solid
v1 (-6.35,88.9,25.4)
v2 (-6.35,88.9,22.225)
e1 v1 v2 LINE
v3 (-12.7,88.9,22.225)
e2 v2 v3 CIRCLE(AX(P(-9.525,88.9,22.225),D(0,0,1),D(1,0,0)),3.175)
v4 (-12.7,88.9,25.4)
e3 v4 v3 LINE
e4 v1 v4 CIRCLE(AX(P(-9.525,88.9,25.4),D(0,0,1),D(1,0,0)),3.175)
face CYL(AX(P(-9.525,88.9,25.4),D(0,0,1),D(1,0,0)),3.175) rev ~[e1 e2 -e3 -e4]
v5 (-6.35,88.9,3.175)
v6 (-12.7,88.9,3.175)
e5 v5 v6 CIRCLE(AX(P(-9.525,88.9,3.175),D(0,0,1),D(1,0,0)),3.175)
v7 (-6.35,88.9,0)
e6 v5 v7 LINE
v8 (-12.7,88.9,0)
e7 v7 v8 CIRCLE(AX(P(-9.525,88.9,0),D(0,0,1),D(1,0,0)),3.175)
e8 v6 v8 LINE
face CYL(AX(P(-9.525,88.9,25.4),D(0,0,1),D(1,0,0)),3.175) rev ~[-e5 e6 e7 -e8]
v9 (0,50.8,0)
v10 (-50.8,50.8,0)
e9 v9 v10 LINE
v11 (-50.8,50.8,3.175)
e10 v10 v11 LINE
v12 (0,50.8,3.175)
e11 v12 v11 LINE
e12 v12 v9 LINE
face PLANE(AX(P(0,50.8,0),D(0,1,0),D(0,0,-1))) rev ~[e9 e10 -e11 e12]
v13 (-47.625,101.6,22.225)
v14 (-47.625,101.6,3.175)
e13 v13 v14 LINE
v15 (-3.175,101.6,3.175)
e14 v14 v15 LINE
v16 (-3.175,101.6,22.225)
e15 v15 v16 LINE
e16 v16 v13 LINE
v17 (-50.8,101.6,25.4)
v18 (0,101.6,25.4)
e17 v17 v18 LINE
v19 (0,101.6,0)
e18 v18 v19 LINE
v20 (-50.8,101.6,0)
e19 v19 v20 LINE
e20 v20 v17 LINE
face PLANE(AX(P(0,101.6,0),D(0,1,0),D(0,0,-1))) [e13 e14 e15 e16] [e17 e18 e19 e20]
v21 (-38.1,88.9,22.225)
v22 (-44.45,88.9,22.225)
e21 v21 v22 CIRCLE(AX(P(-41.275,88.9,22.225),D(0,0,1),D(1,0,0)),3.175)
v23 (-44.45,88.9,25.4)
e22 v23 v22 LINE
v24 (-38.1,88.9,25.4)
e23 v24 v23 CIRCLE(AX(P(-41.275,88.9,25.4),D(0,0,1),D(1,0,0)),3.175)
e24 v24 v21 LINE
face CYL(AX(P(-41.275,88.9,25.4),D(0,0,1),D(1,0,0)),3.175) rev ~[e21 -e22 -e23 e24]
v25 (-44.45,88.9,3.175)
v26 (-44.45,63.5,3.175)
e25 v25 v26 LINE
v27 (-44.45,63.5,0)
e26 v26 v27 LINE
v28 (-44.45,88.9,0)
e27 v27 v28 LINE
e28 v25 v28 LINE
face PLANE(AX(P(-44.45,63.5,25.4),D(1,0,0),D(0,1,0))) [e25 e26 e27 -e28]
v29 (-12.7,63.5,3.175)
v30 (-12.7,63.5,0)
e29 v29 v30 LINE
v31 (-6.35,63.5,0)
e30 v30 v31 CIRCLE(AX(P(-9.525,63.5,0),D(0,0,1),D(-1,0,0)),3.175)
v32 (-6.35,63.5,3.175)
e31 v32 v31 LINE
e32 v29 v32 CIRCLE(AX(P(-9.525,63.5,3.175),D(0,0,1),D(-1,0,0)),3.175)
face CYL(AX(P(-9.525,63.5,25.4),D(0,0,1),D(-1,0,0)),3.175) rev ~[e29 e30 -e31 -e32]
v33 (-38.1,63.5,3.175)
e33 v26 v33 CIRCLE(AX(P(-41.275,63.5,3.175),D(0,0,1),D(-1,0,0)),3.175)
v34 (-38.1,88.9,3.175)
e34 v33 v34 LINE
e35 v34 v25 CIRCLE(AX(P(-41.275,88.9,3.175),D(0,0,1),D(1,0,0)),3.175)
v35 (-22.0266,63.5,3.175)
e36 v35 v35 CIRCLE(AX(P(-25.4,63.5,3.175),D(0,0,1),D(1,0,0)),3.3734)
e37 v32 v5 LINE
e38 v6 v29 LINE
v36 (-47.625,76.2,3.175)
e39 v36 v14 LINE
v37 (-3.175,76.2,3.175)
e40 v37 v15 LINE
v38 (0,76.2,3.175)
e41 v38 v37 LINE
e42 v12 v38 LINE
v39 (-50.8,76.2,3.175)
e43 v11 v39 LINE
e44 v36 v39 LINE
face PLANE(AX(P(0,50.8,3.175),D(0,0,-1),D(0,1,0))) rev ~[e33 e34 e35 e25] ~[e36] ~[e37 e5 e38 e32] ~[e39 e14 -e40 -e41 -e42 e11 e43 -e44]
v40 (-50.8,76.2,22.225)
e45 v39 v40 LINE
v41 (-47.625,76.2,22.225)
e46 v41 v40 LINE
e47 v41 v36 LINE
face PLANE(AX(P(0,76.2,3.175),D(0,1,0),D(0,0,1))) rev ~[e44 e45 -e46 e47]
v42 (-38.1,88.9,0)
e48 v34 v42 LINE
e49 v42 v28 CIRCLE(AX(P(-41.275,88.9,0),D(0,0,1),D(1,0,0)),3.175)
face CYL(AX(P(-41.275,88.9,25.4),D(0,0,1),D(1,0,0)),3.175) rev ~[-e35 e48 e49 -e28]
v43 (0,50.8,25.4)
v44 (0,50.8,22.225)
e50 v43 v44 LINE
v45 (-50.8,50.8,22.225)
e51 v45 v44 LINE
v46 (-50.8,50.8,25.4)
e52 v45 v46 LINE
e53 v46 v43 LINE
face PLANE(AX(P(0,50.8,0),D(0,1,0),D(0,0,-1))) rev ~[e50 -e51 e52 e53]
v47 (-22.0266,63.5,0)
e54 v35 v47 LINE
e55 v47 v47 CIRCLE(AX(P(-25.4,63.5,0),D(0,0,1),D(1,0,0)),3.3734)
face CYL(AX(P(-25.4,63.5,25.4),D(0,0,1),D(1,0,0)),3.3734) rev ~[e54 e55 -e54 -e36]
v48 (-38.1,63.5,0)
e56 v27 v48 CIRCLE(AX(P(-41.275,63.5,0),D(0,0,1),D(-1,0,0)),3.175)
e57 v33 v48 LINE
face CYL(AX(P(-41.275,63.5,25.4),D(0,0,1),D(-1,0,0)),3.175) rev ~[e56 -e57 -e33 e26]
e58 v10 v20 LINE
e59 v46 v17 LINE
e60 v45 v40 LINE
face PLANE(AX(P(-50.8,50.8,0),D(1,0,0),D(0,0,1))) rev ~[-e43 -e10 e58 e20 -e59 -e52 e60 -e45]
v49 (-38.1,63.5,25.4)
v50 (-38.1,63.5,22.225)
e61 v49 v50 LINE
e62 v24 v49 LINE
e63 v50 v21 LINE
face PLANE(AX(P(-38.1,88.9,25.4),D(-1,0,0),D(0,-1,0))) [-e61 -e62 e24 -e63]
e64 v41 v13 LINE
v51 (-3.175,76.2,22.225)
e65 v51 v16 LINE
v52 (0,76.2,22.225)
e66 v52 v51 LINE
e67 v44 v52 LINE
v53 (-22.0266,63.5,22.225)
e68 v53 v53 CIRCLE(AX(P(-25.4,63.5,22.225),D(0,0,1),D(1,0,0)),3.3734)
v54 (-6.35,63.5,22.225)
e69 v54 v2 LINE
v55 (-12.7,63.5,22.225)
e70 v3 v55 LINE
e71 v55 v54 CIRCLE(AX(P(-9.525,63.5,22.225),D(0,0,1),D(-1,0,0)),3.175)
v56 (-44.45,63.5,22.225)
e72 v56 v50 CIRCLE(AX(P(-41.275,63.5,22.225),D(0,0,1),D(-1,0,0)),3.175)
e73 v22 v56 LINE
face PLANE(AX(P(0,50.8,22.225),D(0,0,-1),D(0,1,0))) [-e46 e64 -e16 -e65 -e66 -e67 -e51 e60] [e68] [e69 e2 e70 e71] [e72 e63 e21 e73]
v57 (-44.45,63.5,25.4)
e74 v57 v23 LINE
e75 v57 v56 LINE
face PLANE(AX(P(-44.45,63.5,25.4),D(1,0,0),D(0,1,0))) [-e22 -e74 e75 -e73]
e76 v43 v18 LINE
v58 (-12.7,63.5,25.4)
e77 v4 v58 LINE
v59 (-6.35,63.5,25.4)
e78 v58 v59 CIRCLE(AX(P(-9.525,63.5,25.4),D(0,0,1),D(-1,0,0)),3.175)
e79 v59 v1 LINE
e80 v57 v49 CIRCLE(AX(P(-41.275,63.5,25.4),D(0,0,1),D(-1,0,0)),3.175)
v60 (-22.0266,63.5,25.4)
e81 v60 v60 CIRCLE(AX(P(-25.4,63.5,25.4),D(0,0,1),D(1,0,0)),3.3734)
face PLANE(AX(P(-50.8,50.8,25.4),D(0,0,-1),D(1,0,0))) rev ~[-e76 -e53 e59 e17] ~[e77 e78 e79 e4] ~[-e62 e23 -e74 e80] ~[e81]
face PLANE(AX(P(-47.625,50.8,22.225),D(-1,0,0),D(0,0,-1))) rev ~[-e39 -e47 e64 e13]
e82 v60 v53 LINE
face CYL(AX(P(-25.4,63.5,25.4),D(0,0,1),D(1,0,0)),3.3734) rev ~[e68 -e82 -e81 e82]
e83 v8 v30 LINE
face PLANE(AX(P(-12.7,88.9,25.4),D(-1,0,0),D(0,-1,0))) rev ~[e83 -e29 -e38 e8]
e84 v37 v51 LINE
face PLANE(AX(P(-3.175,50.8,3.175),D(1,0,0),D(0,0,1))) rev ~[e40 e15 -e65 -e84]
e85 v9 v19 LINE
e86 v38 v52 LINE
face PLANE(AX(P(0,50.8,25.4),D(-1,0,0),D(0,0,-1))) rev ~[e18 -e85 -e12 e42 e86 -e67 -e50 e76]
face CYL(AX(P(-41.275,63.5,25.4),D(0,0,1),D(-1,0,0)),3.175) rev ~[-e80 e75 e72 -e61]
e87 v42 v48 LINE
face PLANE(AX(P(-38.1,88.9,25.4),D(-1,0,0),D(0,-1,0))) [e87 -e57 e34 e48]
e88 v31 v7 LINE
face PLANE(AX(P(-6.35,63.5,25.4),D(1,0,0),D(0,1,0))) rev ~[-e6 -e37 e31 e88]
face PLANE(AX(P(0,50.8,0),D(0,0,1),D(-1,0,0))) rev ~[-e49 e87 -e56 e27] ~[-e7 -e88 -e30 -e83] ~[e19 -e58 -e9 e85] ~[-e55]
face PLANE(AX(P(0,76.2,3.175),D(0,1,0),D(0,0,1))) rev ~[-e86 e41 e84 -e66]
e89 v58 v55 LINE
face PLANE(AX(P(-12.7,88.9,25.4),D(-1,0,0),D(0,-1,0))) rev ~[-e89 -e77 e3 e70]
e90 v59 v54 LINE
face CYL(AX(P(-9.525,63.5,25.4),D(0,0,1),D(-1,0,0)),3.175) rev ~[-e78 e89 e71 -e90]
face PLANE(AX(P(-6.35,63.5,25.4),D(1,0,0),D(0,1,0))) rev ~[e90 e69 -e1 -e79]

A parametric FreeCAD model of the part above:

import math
import FreeCAD as App
import Part
import Sketcher
from FreeCAD import Vector
Q = App.Units.Quantity

doc = App.newDocument("Part")
params = doc.addObject("Spreadsheet::Sheet", "Params")
for row, (alias, value) in enumerate([
    ("sketch1_width", "2 in"),
    ("sketch1_height", "1 in"),
    ("pad1_length", "2 in"),
    ("sketch2_height", "1 in"),
    ("sketch2_diameter", "0.265622 in"),
    ("sketch2_radius", "0.125 in"),
    ("pocket1_length", "1 in"),
    ("sketch3_width", "1 in"),
    ("sketch3_height", "0.75 in"),
    ("pocket2_length", "2 in"),
], start=1):
    params.set(f"A{row}", alias)
    params.set(f"B{row}", "=" + value)
    params.setAlias(f"B{row}", alias)

body = doc.addObject("PartDesign::Body", "Body")

sketch1 = body.newObject("Sketcher::SketchObject", "Sketch")
sketch1.AttachmentSupport = (doc.getObject("XZ_Plane"), [""])
sketch1.MapMode = "FlatFace"
sketch1.AttachmentOffset = App.Placement(Vector(0, 0, -2 * 25.4), App.Rotation())
sketch1.addGeometry([
    Part.LineSegment(Vector(0, 0, 0), Vector(-50.8, 0, 0)),
    Part.LineSegment(Vector(-50.8, 0, 0), Vector(-50.8, 25.4, 0)),
    Part.LineSegment(Vector(-50.8, 25.4, 0), Vector(0, 25.4, 0)),
    Part.LineSegment(Vector(0, 25.4, 0), Vector(0, 0, 0)),
    Part.LineSegment(Vector(-47.625, 3.175, 0), Vector(-3.175, 3.175, 0)),
    Part.LineSegment(Vector(-3.175, 3.175, 0), Vector(-3.175, 22.225, 0)),
    Part.LineSegment(Vector(-3.175, 22.225, 0), Vector(-47.625, 22.225, 0)),
    Part.LineSegment(Vector(-47.625, 22.225, 0), Vector(-47.625, 3.175, 0)),
], False)
sketch1.addConstraint([
    Sketcher.Constraint("Coincident", 0, 2, 1, 1),
    Sketcher.Constraint("Coincident", 1, 2, 2, 1),
    Sketcher.Constraint("Coincident", 2, 2, 3, 1),
    Sketcher.Constraint("Coincident", 3, 2, 0, 1),
    Sketcher.Constraint("Coincident", 4, 2, 5, 1),
    Sketcher.Constraint("Coincident", 5, 2, 6, 1),
    Sketcher.Constraint("Coincident", 6, 2, 7, 1),
    Sketcher.Constraint("Coincident", 7, 2, 4, 1),
    Sketcher.Constraint("Horizontal", 0),
    Sketcher.Constraint("Vertical", 1),
    Sketcher.Constraint("Horizontal", 2),
    Sketcher.Constraint("Vertical", 3),
    Sketcher.Constraint("Horizontal", 4),
    Sketcher.Constraint("Vertical", 5),
    Sketcher.Constraint("Horizontal", 6),
    Sketcher.Constraint("Vertical", 7),
    Sketcher.Constraint("Coincident", 3, 2, -1, 1),
    Sketcher.Constraint("DistanceX", 0, 2, 0, 1, Q("2 in")),
    Sketcher.Constraint("DistanceY", 1, 1, 1, 2, Q("1 in")),
    Sketcher.Constraint("DistanceX", 4, 2, -1, 1, Q("0.125 in")),
    Sketcher.Constraint("DistanceY", -1, 1, 4, 2, Q("0.125 in")),
    Sketcher.Constraint("DistanceY", 5, 2, 2, 2, Q("0.125 in")),
    Sketcher.Constraint("DistanceX", 1, 2, 6, 2, Q("0.125 in")),
])
sketch1.setExpression("Constraints[17]", "Params.sketch1_width")
sketch1.setExpression("Constraints[18]", "Params.sketch1_height")
pad1 = body.newObject("PartDesign::Pad", "Pad")
pad1.Profile = sketch1
pad1.setExpression("Length", "Params.pad1_length")
pad1.Reversed = True

sketch2 = body.newObject("Sketcher::SketchObject", "Sketch001")
sketch2.AttachmentSupport = (doc.getObject("XY_Plane"), [""])
sketch2.MapMode = "FlatFace"
sketch2.AttachmentOffset = App.Placement(Vector(0, 0, 1 * 25.4), App.Rotation())
sketch2.addGeometry([
    Part.Circle(Vector(-25.4, 63.5, 0), Vector(0, 0, 1), 3.3734),
    Part.ArcOfCircle(Part.Circle(Vector(-9.525, 88.9, 0), Vector(0, 0, 1), 3.175), math.radians(0), math.radians(180)),
    Part.LineSegment(Vector(-12.7, 88.9, 0), Vector(-12.7, 63.5, 0)),
    Part.ArcOfCircle(Part.Circle(Vector(-9.525, 63.5, 0), Vector(0, 0, 1), 3.175), math.radians(180), math.radians(360)),
    Part.LineSegment(Vector(-6.35, 63.5, 0), Vector(-6.35, 88.9, 0)),
    Part.LineSegment(Vector(-38.1, 63.5, 0), Vector(-38.1, 88.9, 0)),
    Part.ArcOfCircle(Part.Circle(Vector(-41.275, 88.9, 0), Vector(0, 0, 1), 3.175), math.radians(0), math.radians(180)),
    Part.LineSegment(Vector(-44.45, 88.9, 0), Vector(-44.45, 63.5, 0)),
    Part.ArcOfCircle(Part.Circle(Vector(-41.275, 63.5, 0), Vector(0, 0, 1), 3.175), math.radians(180), math.radians(360)),
], False)
sketch2.addConstraint([
    Sketcher.Constraint("Tangent", 1, 2, 2, 1),
    Sketcher.Constraint("Tangent", 2, 2, 3, 1),
    Sketcher.Constraint("Tangent", 3, 2, 4, 1),
    Sketcher.Constraint("Tangent", 4, 2, 1, 1),
    Sketcher.Constraint("Tangent", 5, 2, 6, 1),
    Sketcher.Constraint("Tangent", 6, 2, 7, 1),
    Sketcher.Constraint("Tangent", 7, 2, 8, 1),
    Sketcher.Constraint("Tangent", 8, 2, 5, 1),
    Sketcher.Constraint("Vertical", 2),
    Sketcher.Constraint("Vertical", 4),
    Sketcher.Constraint("Vertical", 5),
    Sketcher.Constraint("Vertical", 7),
    Sketcher.Constraint("Equal", 3, 6),
    Sketcher.Constraint("Horizontal", 0, 3, 3, 3),
    Sketcher.Constraint("Horizontal", 1, 3, 6, 3),
    Sketcher.Constraint("Horizontal", 3, 3, 8, 3),
    Sketcher.Constraint("DistanceY", 2, 2, 2, 1, Q("1 in")),
    Sketcher.Constraint("Diameter", 0, Q("0.265622 in")),
    Sketcher.Constraint("DistanceX", 0, 3, -1, 1, Q("1 in")),
    Sketcher.Constraint("Radius", 1, Q("0.125 in")),
    Sketcher.Constraint("DistanceX", 5, 2, 1, 2, Q("1 in")),
    Sketcher.Constraint("DistanceX", 1, 2, -1, 1, Q("0.5 in")),
    Sketcher.Constraint("DistanceY", -1, 1, 0, 3, Q("2.5 in")),
])
sketch2.setExpression("Constraints[16]", "Params.sketch2_height")
sketch2.setExpression("Constraints[17]", "Params.sketch2_diameter")
sketch2.setExpression("Constraints[19]", "Params.sketch2_radius")
pocket1 = body.newObject("PartDesign::Pocket", "Pocket")
pocket1.Profile = sketch2
pocket1.setExpression("Length", "Params.pocket1_length")

sketch3 = body.newObject("Sketcher::SketchObject", "Sketch002")
sketch3.AttachmentSupport = (doc.getObject("YZ_Plane"), [""])
sketch3.MapMode = "FlatFace"
sketch3.addGeometry([
    Part.LineSegment(Vector(76.2, 22.225, 0), Vector(50.8, 22.225, 0)),
    Part.LineSegment(Vector(50.8, 22.225, 0), Vector(50.8, 3.175, 0)),
    Part.LineSegment(Vector(50.8, 3.175, 0), Vector(76.2, 3.175, 0)),
    Part.LineSegment(Vector(76.2, 3.175, 0), Vector(76.2, 22.225, 0)),
], False)
sketch3.addConstraint([
    Sketcher.Constraint("Coincident", 0, 2, 1, 1),
    Sketcher.Constraint("Coincident", 1, 2, 2, 1),
    Sketcher.Constraint("Coincident", 2, 2, 3, 1),
    Sketcher.Constraint("Coincident", 3, 2, 0, 1),
    Sketcher.Constraint("Horizontal", 0),
    Sketcher.Constraint("Vertical", 1),
    Sketcher.Constraint("Horizontal", 2),
    Sketcher.Constraint("Vertical", 3),
    Sketcher.Constraint("DistanceX", 0, 2, 0, 1, Q("1 in")),
    Sketcher.Constraint("DistanceX", -1, 1, 0, 2, Q("2 in")),
    Sketcher.Constraint("DistanceY", 1, 2, 1, 1, Q("0.75 in")),
    Sketcher.Constraint("DistanceY", -1, 1, 0, 2, Q("0.875 in")),
])
sketch3.setExpression("Constraints[8]", "Params.sketch3_width")
sketch3.setExpression("Constraints[10]", "Params.sketch3_height")
pocket2 = body.newObject("PartDesign::Pocket", "Pocket001")
pocket2.Profile = sketch3
pocket2.setExpression("Length", "Params.pocket2_length")

doc.recompute()
